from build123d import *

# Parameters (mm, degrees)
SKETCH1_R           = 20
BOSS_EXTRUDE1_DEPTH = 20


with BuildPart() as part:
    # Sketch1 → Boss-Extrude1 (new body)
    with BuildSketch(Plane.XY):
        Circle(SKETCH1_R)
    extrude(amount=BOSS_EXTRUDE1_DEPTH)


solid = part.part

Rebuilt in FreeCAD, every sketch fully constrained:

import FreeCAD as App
import Part
import Sketcher

V = App.Vector
Q = App.Units.Quantity

doc = App.newDocument("Part")
body = doc.addObject("PartDesign::Body", "Body")

# Sketch on XY plane
sketch1 = body.newObject("Sketcher::SketchObject", "Sketch")
sketch1.AttachmentSupport = (doc.getObject("XY_Plane"), [""])
sketch1.MapMode = "FlatFace"
sketch1.addGeometry(Part.Circle(V(0, 0, 0), V(0, 0, 1), 20), False)
sketch1.addConstraint([
    Sketcher.Constraint("Coincident", 0, 3, -1, 1),
    Sketcher.Constraint("Diameter", 0, Q("40 mm")),
])
pad1 = body.newObject("PartDesign::Pad", "Pad")
pad1.Profile = sketch1
pad1.Length = 20

doc.recompute()
